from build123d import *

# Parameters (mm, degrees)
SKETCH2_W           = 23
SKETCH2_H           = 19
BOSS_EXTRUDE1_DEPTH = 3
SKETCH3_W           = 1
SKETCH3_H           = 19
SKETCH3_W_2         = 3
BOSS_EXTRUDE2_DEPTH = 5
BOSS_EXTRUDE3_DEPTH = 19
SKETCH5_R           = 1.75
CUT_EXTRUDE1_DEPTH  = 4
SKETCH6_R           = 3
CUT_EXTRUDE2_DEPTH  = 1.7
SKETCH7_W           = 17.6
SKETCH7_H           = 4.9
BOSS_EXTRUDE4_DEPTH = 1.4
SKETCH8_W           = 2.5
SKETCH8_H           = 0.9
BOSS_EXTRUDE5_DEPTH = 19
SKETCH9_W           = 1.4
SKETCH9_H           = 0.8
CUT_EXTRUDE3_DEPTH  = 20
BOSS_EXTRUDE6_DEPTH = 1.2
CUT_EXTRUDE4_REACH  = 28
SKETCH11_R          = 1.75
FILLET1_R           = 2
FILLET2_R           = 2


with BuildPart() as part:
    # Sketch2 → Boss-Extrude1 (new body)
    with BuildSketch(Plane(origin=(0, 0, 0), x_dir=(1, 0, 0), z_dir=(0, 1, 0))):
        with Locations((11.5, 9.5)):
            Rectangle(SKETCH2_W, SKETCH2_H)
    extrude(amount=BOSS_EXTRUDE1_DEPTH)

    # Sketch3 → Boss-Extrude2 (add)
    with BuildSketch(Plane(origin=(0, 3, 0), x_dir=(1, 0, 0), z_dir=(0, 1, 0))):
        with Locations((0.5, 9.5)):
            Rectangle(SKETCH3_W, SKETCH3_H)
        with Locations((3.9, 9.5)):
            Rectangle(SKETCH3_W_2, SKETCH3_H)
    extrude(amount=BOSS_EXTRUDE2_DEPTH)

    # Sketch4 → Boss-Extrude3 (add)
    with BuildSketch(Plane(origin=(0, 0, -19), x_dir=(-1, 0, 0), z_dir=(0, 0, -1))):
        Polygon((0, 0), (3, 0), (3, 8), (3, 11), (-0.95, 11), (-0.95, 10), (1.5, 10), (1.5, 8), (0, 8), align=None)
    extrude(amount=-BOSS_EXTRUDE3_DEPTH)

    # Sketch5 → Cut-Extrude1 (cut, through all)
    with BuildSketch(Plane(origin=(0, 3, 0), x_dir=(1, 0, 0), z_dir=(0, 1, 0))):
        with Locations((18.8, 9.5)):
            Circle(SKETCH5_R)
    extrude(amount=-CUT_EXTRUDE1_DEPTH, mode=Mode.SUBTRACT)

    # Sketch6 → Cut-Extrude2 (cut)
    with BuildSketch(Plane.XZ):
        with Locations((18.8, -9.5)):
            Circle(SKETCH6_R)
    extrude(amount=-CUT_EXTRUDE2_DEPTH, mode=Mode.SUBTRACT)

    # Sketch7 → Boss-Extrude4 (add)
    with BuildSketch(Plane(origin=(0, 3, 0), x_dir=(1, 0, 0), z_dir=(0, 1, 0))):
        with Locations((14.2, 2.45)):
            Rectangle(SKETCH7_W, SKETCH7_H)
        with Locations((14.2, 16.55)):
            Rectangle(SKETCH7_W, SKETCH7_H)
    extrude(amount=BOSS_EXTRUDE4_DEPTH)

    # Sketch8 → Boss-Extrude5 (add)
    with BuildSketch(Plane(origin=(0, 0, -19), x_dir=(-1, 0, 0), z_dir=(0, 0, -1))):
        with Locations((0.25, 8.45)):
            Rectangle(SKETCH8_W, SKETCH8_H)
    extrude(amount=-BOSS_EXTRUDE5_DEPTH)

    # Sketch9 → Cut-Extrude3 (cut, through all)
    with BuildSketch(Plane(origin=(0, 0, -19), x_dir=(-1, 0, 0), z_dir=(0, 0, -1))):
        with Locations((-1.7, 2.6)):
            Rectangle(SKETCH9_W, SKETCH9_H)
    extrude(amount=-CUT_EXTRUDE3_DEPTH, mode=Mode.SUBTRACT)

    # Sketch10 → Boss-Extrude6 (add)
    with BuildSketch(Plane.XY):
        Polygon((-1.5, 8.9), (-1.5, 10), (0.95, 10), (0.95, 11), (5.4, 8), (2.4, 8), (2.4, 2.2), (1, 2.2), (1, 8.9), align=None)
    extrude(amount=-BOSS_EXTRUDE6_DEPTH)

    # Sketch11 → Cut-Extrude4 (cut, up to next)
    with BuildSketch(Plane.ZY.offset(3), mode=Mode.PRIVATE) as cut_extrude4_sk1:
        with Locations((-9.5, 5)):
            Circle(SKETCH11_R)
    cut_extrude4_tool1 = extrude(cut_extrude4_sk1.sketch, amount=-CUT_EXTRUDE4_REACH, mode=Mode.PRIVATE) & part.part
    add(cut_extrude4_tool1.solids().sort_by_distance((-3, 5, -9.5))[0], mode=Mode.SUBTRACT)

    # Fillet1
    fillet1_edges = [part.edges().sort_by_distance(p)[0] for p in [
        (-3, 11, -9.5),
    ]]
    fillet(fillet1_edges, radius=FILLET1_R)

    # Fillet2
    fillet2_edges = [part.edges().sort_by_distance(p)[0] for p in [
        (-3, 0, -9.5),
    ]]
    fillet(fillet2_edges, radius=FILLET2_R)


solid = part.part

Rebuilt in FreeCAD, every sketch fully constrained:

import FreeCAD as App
import Part
import Sketcher


def edges_at(feature, points):
    """Names of the edges that pass closest to the given points."""
    edges = feature.Shape.Edges
    near = lambda p: min(range(len(edges)), key=lambda i: edges[i].distToShape(Part.Vertex(*p))[0])
    return sorted({f"Edge{near(p) + 1}" for p in points})

doc = App.newDocument("Part")
params = doc.addObject("Spreadsheet::Sheet", "Params")
for row, (alias, value) in enumerate([
    ("sketch1_width", "23 mm"),
    ("sketch1_height", "19 mm"),
    ("pad1_length", "3 mm"),
    ("sketch2_width", "1 mm"),
    ("sketch2_width2", "3 mm"),
    ("sketch2_height", "19 mm"),
    ("pad2_length", "5 mm"),
    ("sketch3_width", "3 mm"),
    ("sketch3_height", "11 mm"),
    ("sketch3_height2", "1 mm"),
    ("sketch3_height3", "2 mm"),
    ("sketch3_width2", "1.5 mm"),
    ("pad3_length", "19 mm"),
    ("sketch4_diameter", "3.5 mm"),
    ("sketch5_diameter", "6 mm"),
    ("pocket2_length", "1.7 mm"),
    ("sketch6_width", "17.6 mm"),
    ("sketch6_height", "4.9 mm"),
    ("pad4_length", "1.4 mm"),
    ("sketch7_width", "2.5 mm"),
    ("sketch7_height", "0.9 mm"),
    ("pad5_length", "19 mm"),
    ("sketch8_width", "1.4 mm"),
    ("sketch8_height", "0.8 mm"),
    ("sketch9_width", "3 mm"),
    ("sketch9_height", "1 mm"),
    ("sketch9_width2", "2.5 mm"),
    ("sketch9_width3", "1.4 mm"),
    ("sketch9_height2", "1.1 mm"),
    ("pad6_length", "1.2 mm"),
    ("sketch10_diameter", "3.5 mm"),
    ("fillet_radius", "2 mm"),
    ("fillet2_radius", "2 mm"),
], start=1):
    params.set(f"A{row}", alias)
    params.set(f"B{row}", "=" + value)
    params.setAlias(f"B{row}", alias)

body = doc.addObject("PartDesign::Body", "Body")

# Sketch on XZ plane
sketch1 = body.newObject("Sketcher::SketchObject", "Sketch")
sketch1.AttachmentSupport = (doc.getObject("XZ_Plane"), [""])
sketch1.MapMode = "FlatFace"
sketch1.addGeometry(Part.LineSegment(App.Vector(0, -19, 0), App.Vector(0, 0, 0)), False)
sketch1.addGeometry(Part.LineSegment(App.Vector(0, 0, 0), App.Vector(23, 0, 0)), False)
sketch1.addGeometry(Part.LineSegment(App.Vector(23, 0, 0), App.Vector(23, -19, 0)), False)
sketch1.addGeometry(Part.LineSegment(App.Vector(23, -19, 0), App.Vector(0, -19, 0)), False)
sketch1.addConstraint(Sketcher.Constraint("Coincident", 0, 2, 1, 1))
sketch1.addConstraint(Sketcher.Constraint("Coincident", 1, 2, 2, 1))
sketch1.addConstraint(Sketcher.Constraint("Coincident", 2, 2, 3, 1))
sketch1.addConstraint(Sketcher.Constraint("Coincident", 3, 2, 0, 1))
sketch1.addConstraint(Sketcher.Constraint("Vertical", 0))
sketch1.addConstraint(Sketcher.Constraint("Horizontal", 1))
sketch1.addConstraint(Sketcher.Constraint("Vertical", 2))
sketch1.addConstraint(Sketcher.Constraint("Horizontal", 3))
sketch1.addConstraint(Sketcher.Constraint("Coincident", 0, 2, -1, 1))
sketch1.addConstraint(Sketcher.Constraint("DistanceX", 1, 1, 1, 2, 23.0))
sketch1.addConstraint(Sketcher.Constraint("DistanceY", 0, 1, 0, 2, 19.0))
sketch1.setExpression("Constraints[9]", "Params.sketch1_width")
sketch1.setExpression("Constraints[10]", "Params.sketch1_height")
pad1 = body.newObject("PartDesign::Pad", "Pad")
pad1.Profile = sketch1
pad1.setExpression("Length", "Params.pad1_length")
pad1.Reversed = True

# Sketch on XZ plane
sketch2 = body.newObject("Sketcher::SketchObject", "Sketch001")
sketch2.AttachmentSupport = (doc.getObject("XZ_Plane"), [""])
sketch2.MapMode = "FlatFace"
sketch2.AttachmentOffset = App.Placement(App.Vector(0, 0, -3), App.Rotation())
sketch2.addGeometry(Part.LineSegment(App.Vector(0, -19, 0), App.Vector(0, 0, 0)), False)
sketch2.addGeometry(Part.LineSegment(App.Vector(0, 0, 0), App.Vector(1, 0, 0)), False)
sketch2.addGeometry(Part.LineSegment(App.Vector(1, 0, 0), App.Vector(1, -19, 0)), False)
sketch2.addGeometry(Part.LineSegment(App.Vector(1, -19, 0), App.Vector(0, -19, 0)), False)
sketch2.addGeometry(Part.LineSegment(App.Vector(2.4, -19, 0), App.Vector(2.4, 0, 0)), False)
sketch2.addGeometry(Part.LineSegment(App.Vector(2.4, 0, 0), App.Vector(5.4, 0, 0)), False)
sketch2.addGeometry(Part.LineSegment(App.Vector(5.4, 0, 0), App.Vector(5.4, -19, 0)), False)
sketch2.addGeometry(Part.LineSegment(App.Vector(5.4, -19, 0), App.Vector(2.4, -19, 0)), False)
sketch2.addConstraint(Sketcher.Constraint("Coincident", 0, 2, 1, 1))
sketch2.addConstraint(Sketcher.Constraint("Coincident", 1, 2, 2, 1))
sketch2.addConstraint(Sketcher.Constraint("Coincident", 2, 2, 3, 1))
sketch2.addConstraint(Sketcher.Constraint("Coincident", 3, 2, 0, 1))
sketch2.addConstraint(Sketcher.Constraint("Coincident", 4, 2, 5, 1))
sketch2.addConstraint(Sketcher.Constraint("Coincident", 5, 2, 6, 1))
sketch2.addConstraint(Sketcher.Constraint("Coincident", 6, 2, 7, 1))
sketch2.addConstraint(Sketcher.Constraint("Coincident", 7, 2, 4, 1))
sketch2.addConstraint(Sketcher.Constraint("Vertical", 0))
sketch2.addConstraint(Sketcher.Constraint("Horizontal", 1))
sketch2.addConstraint(Sketcher.Constraint("Vertical", 2))
sketch2.addConstraint(Sketcher.Constraint("Horizontal", 3))
sketch2.addConstraint(Sketcher.Constraint("Vertical", 4))
sketch2.addConstraint(Sketcher.Constraint("Horizontal", 5))
sketch2.addConstraint(Sketcher.Constraint("Vertical", 6))
sketch2.addConstraint(Sketcher.Constraint("Horizontal", 7))
sketch2.addConstraint(Sketcher.Constraint("Coincident", 0, 2, -1, 1))
sketch2.addConstraint(Sketcher.Constraint("PointOnObject", 4, 2, -1))
sketch2.addConstraint(Sketcher.Constraint("Horizontal", 3, 2, 6, 2))
sketch2.addConstraint(Sketcher.Constraint("DistanceX", 1, 1, 1, 2, 1.0))
sketch2.addConstraint(Sketcher.Constraint("DistanceX", 5, 1, 5, 2, 3.0))
sketch2.addConstraint(Sketcher.Constraint("DistanceY", 0, 1, 0, 2, 19.0))
sketch2.addConstraint(Sketcher.Constraint("DistanceX", -1, 1, 4, 2, 2.4))
sketch2.setExpression("Constraints[19]", "Params.sketch2_width")
sketch2.setExpression("Constraints[20]", "Params.sketch2_width2")
sketch2.setExpression("Constraints[21]", "Params.sketch2_height")
pad2 = body.newObject("PartDesign::Pad", "Pad001")
pad2.Profile = sketch2
pad2.setExpression("Length", "Params.pad2_length")
pad2.Reversed = True

# Sketch on XY plane
sketch3 = body.newObject("Sketcher::SketchObject", "Sketch002")
sketch3.AttachmentSupport = (doc.getObject("XY_Plane"), [""])
sketch3.MapMode = "FlatFace"
sketch3.AttachmentOffset = App.Placement(App.Vector(0, 0, -19), App.Rotation())
sketch3.addGeometry(Part.LineSegment(App.Vector(0, 0, 0), App.Vector(-3, 0, 0)), False)
sketch3.addGeometry(Part.LineSegment(App.Vector(-3, 0, 0), App.Vector(-3, 11, 0)), False)
sketch3.addGeometry(Part.LineSegment(App.Vector(-3, 11, 0), App.Vector(0.95, 11, 0)), False)
sketch3.addGeometry(Part.LineSegment(App.Vector(0.95, 11, 0), App.Vector(0.95, 10, 0)), False)
sketch3.addGeometry(Part.LineSegment(App.Vector(0.95, 10, 0), App.Vector(-1.5, 10, 0)), False)
sketch3.addGeometry(Part.LineSegment(App.Vector(-1.5, 10, 0), App.Vector(-1.5, 8, 0)), False)
sketch3.addGeometry(Part.LineSegment(App.Vector(-1.5, 8, 0), App.Vector(0, 8, 0)), False)
sketch3.addGeometry(Part.LineSegment(App.Vector(0, 8, 0), App.Vector(0, 0, 0)), False)
sketch3.addConstraint(Sketcher.Constraint("Coincident", 0, 2, 1, 1))
sketch3.addConstraint(Sketcher.Constraint("Coincident", 1, 2, 2, 1))
sketch3.addConstraint(Sketcher.Constraint("Coincident", 2, 2, 3, 1))
sketch3.addConstraint(Sketcher.Constraint("Coincident", 3, 2, 4, 1))
sketch3.addConstraint(Sketcher.Constraint("Coincident", 4, 2, 5, 1))
sketch3.addConstraint(Sketcher.Constraint("Coincident", 5, 2, 6, 1))
sketch3.addConstraint(Sketcher.Constraint("Coincident", 6, 2, 7, 1))
sketch3.addConstraint(Sketcher.Constraint("Coincident", 7, 2, 0, 1))
sketch3.addConstraint(Sketcher.Constraint("Horizontal", 0))
sketch3.addConstraint(Sketcher.Constraint("Vertical", 1))
sketch3.addConstraint(Sketcher.Constraint("Horizontal", 2))
sketch3.addConstraint(Sketcher.Constraint("Vertical", 3))
sketch3.addConstraint(Sketcher.Constraint("Horizontal", 4))
sketch3.addConstraint(Sketcher.Constraint("Vertical", 5))
sketch3.addConstraint(Sketcher.Constraint("Horizontal", 6))
sketch3.addConstraint(Sketcher.Constraint("Vertical", 7))
sketch3.addConstraint(Sketcher.Constraint("Coincident", 7, 2, -1, 1))
sketch3.addConstraint(Sketcher.Constraint("DistanceX", 0, 2, 0, 1, 3.0))
sketch3.addConstraint(Sketcher.Constraint("DistanceY", 1, 1, 1, 2, 11.0))
sketch3.addConstraint(Sketcher.Constraint("DistanceY", 3, 2, 3, 1, 1.0))
sketch3.addConstraint(Sketcher.Constraint("DistanceY", 5, 2, 5, 1, 2.0))
sketch3.addConstraint(Sketcher.Constraint("DistanceX", 6, 1, 6, 2, 1.5))
sketch3.addConstraint(Sketcher.Constraint("DistanceX", 2, 1, 2, 2, 3.95))
sketch3.setExpression("Constraints[17]", "Params.sketch3_width")
sketch3.setExpression("Constraints[18]", "Params.sketch3_height")
sketch3.setExpression("Constraints[19]", "Params.sketch3_height2")
sketch3.setExpression("Constraints[20]", "Params.sketch3_height3")
sketch3.setExpression("Constraints[21]", "Params.sketch3_width2")
pad3 = body.newObject("PartDesign::Pad", "Pad002")
pad3.Profile = sketch3
pad3.setExpression("Length", "Params.pad3_length")

# Sketch on XZ plane
sketch4 = body.newObject("Sketcher::SketchObject", "Sketch003")
sketch4.AttachmentSupport = (doc.getObject("XZ_Plane"), [""])
sketch4.MapMode = "FlatFace"
sketch4.AttachmentOffset = App.Placement(App.Vector(0, 0, -3), App.Rotation())
sketch4.addGeometry(Part.Circle(App.Vector(18.8, -9.5, 0), App.Vector(0, 0, 1), 1.75), False)
sketch4.addConstraint(Sketcher.Constraint("Diameter", 0, 3.5))
sketch4.addConstraint(Sketcher.Constraint("DistanceX", -1, 1, 0, 3, 18.8))
sketch4.addConstraint(Sketcher.Constraint("DistanceY", 0, 3, -1, 1, 9.5))
sketch4.setExpression("Constraints[0]", "Params.sketch4_diameter")
pocket1 = body.newObject("PartDesign::Pocket", "Pocket")
pocket1.Profile = sketch4
pocket1.Type = "ThroughAll"
pocket1.Reversed = True

# Sketch on XZ plane
sketch5 = body.newObject("Sketcher::SketchObject", "Sketch004")
sketch5.AttachmentSupport = (doc.getObject("XZ_Plane"), [""])
sketch5.MapMode = "FlatFace"
sketch5.addGeometry(Part.Circle(App.Vector(18.8, -9.5, 0), App.Vector(0, 0, 1), 3), False)
sketch5.addConstraint(Sketcher.Constraint("Diameter", 0, 6.0))
sketch5.addConstraint(Sketcher.Constraint("DistanceX", -1, 1, 0, 3, 18.8))
sketch5.addConstraint(Sketcher.Constraint("DistanceY", 0, 3, -1, 1, 9.5))
sketch5.setExpression("Constraints[0]", "Params.sketch5_diameter")
pocket2 = body.newObject("PartDesign::Pocket", "Pocket001")
pocket2.Profile = sketch5
pocket2.setExpression("Length", "Params.pocket2_length")

# Sketch on XZ plane
sketch6 = body.newObject("Sketcher::SketchObject", "Sketch005")
sketch6.AttachmentSupport = (doc.getObject("XZ_Plane"), [""])
sketch6.MapMode = "FlatFace"
sketch6.AttachmentOffset = App.Placement(App.Vector(0, 0, -3), App.Rotation())
sketch6.addGeometry(Part.LineSegment(App.Vector(5.4, -4.9, 0), App.Vector(5.4, 0, 0)), False)
sketch6.addGeometry(Part.LineSegment(App.Vector(5.4, 0, 0), App.Vector(23, 0, 0)), False)
sketch6.addGeometry(Part.LineSegment(App.Vector(23, 0, 0), App.Vector(23, -4.9, 0)), False)
sketch6.addGeometry(Part.LineSegment(App.Vector(23, -4.9, 0), App.Vector(5.4, -4.9, 0)), False)
sketch6.addGeometry(Part.LineSegment(App.Vector(5.4, -19, 0), App.Vector(5.4, -14.1, 0)), False)
sketch6.addGeometry(Part.LineSegment(App.Vector(5.4, -14.1, 0), App.Vector(23, -14.1, 0)), False)
sketch6.addGeometry(Part.LineSegment(App.Vector(23, -14.1, 0), App.Vector(23, -19, 0)), False)
sketch6.addGeometry(Part.LineSegment(App.Vector(23, -19, 0), App.Vector(5.4, -19, 0)), False)
sketch6.addConstraint(Sketcher.Constraint("Coincident", 0, 2, 1, 1))
sketch6.addConstraint(Sketcher.Constraint("Coincident", 1, 2, 2, 1))
sketch6.addConstraint(Sketcher.Constraint("Coincident", 2, 2, 3, 1))
sketch6.addConstraint(Sketcher.Constraint("Coincident", 3, 2, 0, 1))
sketch6.addConstraint(Sketcher.Constraint("Coincident", 4, 2, 5, 1))
sketch6.addConstraint(Sketcher.Constraint("Coincident", 5, 2, 6, 1))
sketch6.addConstraint(Sketcher.Constraint("Coincident", 6, 2, 7, 1))
sketch6.addConstraint(Sketcher.Constraint("Coincident", 7, 2, 4, 1))
sketch6.addConstraint(Sketcher.Constraint("Vertical", 0))
sketch6.addConstraint(Sketcher.Constraint("Horizontal", 1))
sketch6.addConstraint(Sketcher.Constraint("Vertical", 2))
sketch6.addConstraint(Sketcher.Constraint("Horizontal", 3))
sketch6.addConstraint(Sketcher.Constraint("Vertical", 4))
sketch6.addConstraint(Sketcher.Constraint("Horizontal", 5))
sketch6.addConstraint(Sketcher.Constraint("Vertical", 6))
sketch6.addConstraint(Sketcher.Constraint("Horizontal", 7))
sketch6.addConstraint(Sketcher.Constraint("PointOnObject", 0, 2, -1))
sketch6.addConstraint(Sketcher.Constraint("Vertical", 3, 2, 4, 2))
sketch6.addConstraint(Sketcher.Constraint("Vertical", 2, 2, 5, 2))
sketch6.addConstraint(Sketcher.Constraint("Equal", 2, 4))
sketch6.addConstraint(Sketcher.Constraint("DistanceX", 1, 1, 1, 2, 17.6))
sketch6.addConstraint(Sketcher.Constraint("DistanceY", 0, 1, 0, 2, 4.9))
sketch6.addConstraint(Sketcher.Constraint("DistanceX", -1, 1, 1, 2, 23.0))
sketch6.addConstraint(Sketcher.Constraint("DistanceY", 6, 2, -1, 1, 19.0))
sketch6.setExpression("Constraints[20]", "Params.sketch6_width")
sketch6.setExpression("Constraints[21]", "Params.sketch6_height")
pad4 = body.newObject("PartDesign::Pad", "Pad003")
pad4.Profile = sketch6
pad4.setExpression("Length", "Params.pad4_length")
pad4.Reversed = True

# Sketch on XY plane
sketch7 = body.newObject("Sketcher::SketchObject", "Sketch006")
sketch7.AttachmentSupport = (doc.getObject("XY_Plane"), [""])
sketch7.MapMode = "FlatFace"
sketch7.AttachmentOffset = App.Placement(App.Vector(0, 0, -19), App.Rotation())
sketch7.addGeometry(Part.LineSegment(App.Vector(1, 8.9, 0), App.Vector(1, 8, 0)), False)
sketch7.addGeometry(Part.LineSegment(App.Vector(1, 8, 0), App.Vector(-1.5, 8, 0)), False)
sketch7.addGeometry(Part.LineSegment(App.Vector(-1.5, 8, 0), App.Vector(-1.5, 8.9, 0)), False)
sketch7.addGeometry(Part.LineSegment(App.Vector(-1.5, 8.9, 0), App.Vector(1, 8.9, 0)), False)
sketch7.addConstraint(Sketcher.Constraint("Coincident", 0, 2, 1, 1))
sketch7.addConstraint(Sketcher.Constraint("Coincident", 1, 2, 2, 1))
sketch7.addConstraint(Sketcher.Constraint("Coincident", 2, 2, 3, 1))
sketch7.addConstraint(Sketcher.Constraint("Coincident", 3, 2, 0, 1))
sketch7.addConstraint(Sketcher.Constraint("Vertical", 0))
sketch7.addConstraint(Sketcher.Constraint("Horizontal", 1))
sketch7.addConstraint(Sketcher.Constraint("Vertical", 2))
sketch7.addConstraint(Sketcher.Constraint("Horizontal", 3))
sketch7.addConstraint(Sketcher.Constraint("DistanceX", 1, 2, 1, 1, 2.5))
sketch7.addConstraint(Sketcher.Constraint("DistanceY", 0, 2, 0, 1, 0.9))
sketch7.addConstraint(Sketcher.Constraint("DistanceX", -1, 1, 0, 2, 1.0))
sketch7.addConstraint(Sketcher.Constraint("DistanceY", -1, 1, 0, 2, 8.0))
sketch7.setExpression("Constraints[8]", "Params.sketch7_width")
sketch7.setExpression("Constraints[9]", "Params.sketch7_height")
pad5 = body.newObject("PartDesign::Pad", "Pad004")
pad5.Profile = sketch7
pad5.setExpression("Length", "Params.pad5_length")

# Sketch on XY plane
sketch8 = body.newObject("Sketcher::SketchObject", "Sketch007")
sketch8.AttachmentSupport = (doc.getObject("XY_Plane"), [""])
sketch8.MapMode = "FlatFace"
sketch8.AttachmentOffset = App.Placement(App.Vector(0, 0, -19), App.Rotation())
sketch8.addGeometry(Part.LineSegment(App.Vector(2.4, 3, 0), App.Vector(2.4, 2.2, 0)), False)
sketch8.addGeometry(Part.LineSegment(App.Vector(2.4, 2.2, 0), App.Vector(1, 2.2, 0)), False)
sketch8.addGeometry(Part.LineSegment(App.Vector(1, 2.2, 0), App.Vector(1, 3, 0)), False)
sketch8.addGeometry(Part.LineSegment(App.Vector(1, 3, 0), App.Vector(2.4, 3, 0)), False)
sketch8.addConstraint(Sketcher.Constraint("Coincident", 0, 2, 1, 1))
sketch8.addConstraint(Sketcher.Constraint("Coincident", 1, 2, 2, 1))
sketch8.addConstraint(Sketcher.Constraint("Coincident", 2, 2, 3, 1))
sketch8.addConstraint(Sketcher.Constraint("Coincident", 3, 2, 0, 1))
sketch8.addConstraint(Sketcher.Constraint("Vertical", 0))
sketch8.addConstraint(Sketcher.Constraint("Horizontal", 1))
sketch8.addConstraint(Sketcher.Constraint("Vertical", 2))
sketch8.addConstraint(Sketcher.Constraint("Horizontal", 3))
sketch8.addConstraint(Sketcher.Constraint("DistanceX", 1, 2, 1, 1, 1.4))
sketch8.addConstraint(Sketcher.Constraint("DistanceY", 0, 2, 0, 1, 0.8))
sketch8.addConstraint(Sketcher.Constraint("DistanceX", -1, 1, 1, 2, 1.0))
sketch8.addConstraint(Sketcher.Constraint("DistanceY", -1, 1, 2, 2, 3.0))
sketch8.setExpression("Constraints[8]", "Params.sketch8_width")
sketch8.setExpression("Constraints[9]", "Params.sketch8_height")
pocket3 = body.newObject("PartDesign::Pocket", "Pocket002")
pocket3.Profile = sketch8
pocket3.Type = "ThroughAll"
pocket3.Reversed = True

# Sketch on XY plane
sketch9 = body.newObject("Sketcher::SketchObject", "Sketch008")
sketch9.AttachmentSupport = (doc.getObject("XY_Plane"), [""])
sketch9.MapMode = "FlatFace"
sketch9.addGeometry(Part.LineSegment(App.Vector(-1.5, 10, 0), App.Vector(-1.5, 8.9, 0)), False)
sketch9.addGeometry(Part.LineSegment(App.Vector(-1.5, 8.9, 0), App.Vector(1, 8.9, 0)), False)
sketch9.addGeometry(Part.LineSegment(App.Vector(1, 8.9, 0), App.Vector(1, 2.2, 0)), False)
sketch9.addGeometry(Part.LineSegment(App.Vector(1, 2.2, 0), App.Vector(2.4, 2.2, 0)), False)
sketch9.addGeometry(Part.LineSegment(App.Vector(2.4, 2.2, 0), App.Vector(2.4, 8, 0)), False)
sketch9.addGeometry(Part.LineSegment(App.Vector(2.4, 8, 0), App.Vector(5.4, 8, 0)), False)
sketch9.addGeometry(Part.LineSegment(App.Vector(5.4, 8, 0), App.Vector(0.95, 11, 0)), False)
sketch9.addGeometry(Part.LineSegment(App.Vector(0.95, 11, 0), App.Vector(0.95, 10, 0)), False)
sketch9.addGeometry(Part.LineSegment(App.Vector(0.95, 10, 0), App.Vector(-1.5, 10, 0)), False)
sketch9.addConstraint(Sketcher.Constraint("Coincident", 0, 2, 1, 1))
sketch9.addConstraint(Sketcher.Constraint("Coincident", 1, 2, 2, 1))
sketch9.addConstraint(Sketcher.Constraint("Coincident", 2, 2, 3, 1))
sketch9.addConstraint(Sketcher.Constraint("Coincident", 3, 2, 4, 1))
sketch9.addConstraint(Sketcher.Constraint("Coincident", 4, 2, 5, 1))
sketch9.addConstraint(Sketcher.Constraint("Coincident", 5, 2, 6, 1))
sketch9.addConstraint(Sketcher.Constraint("Coincident", 6, 2, 7, 1))
sketch9.addConstraint(Sketcher.Constraint("Coincident", 7, 2, 8, 1))
sketch9.addConstraint(Sketcher.Constraint("Coincident", 8, 2, 0, 1))
sketch9.addConstraint(Sketcher.Constraint("Vertical", 0))
sketch9.addConstraint(Sketcher.Constraint("Horizontal", 1))
sketch9.addConstraint(Sketcher.Constraint("Vertical", 2))
sketch9.addConstraint(Sketcher.Constraint("Horizontal", 3))
sketch9.addConstraint(Sketcher.Constraint("Vertical", 4))
sketch9.addConstraint(Sketcher.Constraint("Horizontal", 5))
sketch9.addConstraint(Sketcher.Constraint("Vertical", 7))
sketch9.addConstraint(Sketcher.Constraint("Horizontal", 8))
sketch9.addConstraint(Sketcher.Constraint("DistanceX", 5, 1, 5, 2, 3.0))
sketch9.addConstraint(Sketcher.Constraint("DistanceY", 7, 2, 7, 1, 1.0))
sketch9.addConstraint(Sketcher.Constraint("DistanceX", 1, 1, 1, 2, 2.5))
sketch9.addConstraint(Sketcher.Constraint("DistanceX", 3, 1, 3, 2, 1.4))
sketch9.addConstraint(Sketcher.Constraint("DistanceY", 0, 2, 0, 1, 1.1))
sketch9.addConstraint(Sketcher.Constraint("DistanceY", 2, 2, 2, 1, 6.7))
sketch9.addConstraint(Sketcher.Constraint("DistanceY", 4, 1, 4, 2, 5.8))
sketch9.addConstraint(Sketcher.Constraint("DistanceX", -1, 1, 1, 2, 1.0))
sketch9.addConstraint(Sketcher.Constraint("DistanceY", -1, 1, 4, 2, 8.0))
sketch9.addConstraint(Sketcher.Constraint("DistanceX", 8, 2, 8, 1, 2.45))
sketch9.setExpression("Constraints[17]", "Params.sketch9_width")
sketch9.setExpression("Constraints[18]", "Params.sketch9_height")
sketch9.setExpression("Constraints[19]", "Params.sketch9_width2")
sketch9.setExpression("Constraints[20]", "Params.sketch9_width3")
sketch9.setExpression("Constraints[21]", "Params.sketch9_height2")
pad6 = body.newObject("PartDesign::Pad", "Pad005")
pad6.Profile = sketch9
pad6.setExpression("Length", "Params.pad6_length")
pad6.Reversed = True

# Sketch on YZ plane
sketch10 = body.newObject("Sketcher::SketchObject", "Sketch009")
sketch10.AttachmentSupport = (doc.getObject("YZ_Plane"), [""])
sketch10.MapMode = "FlatFace"
sketch10.AttachmentOffset = App.Placement(App.Vector(0, 0, -3), App.Rotation())
sketch10.addGeometry(Part.Circle(App.Vector(5, -9.5, 0), App.Vector(0, 0, 1), 1.75), False)
sketch10.addConstraint(Sketcher.Constraint("Diameter", 0, 3.5))
sketch10.addConstraint(Sketcher.Constraint("DistanceX", -1, 1, 0, 3, 5.0))
sketch10.addConstraint(Sketcher.Constraint("DistanceY", 0, 3, -1, 1, 9.5))
sketch10.setExpression("Constraints[0]", "Params.sketch10_diameter")
pocket4 = body.newObject("PartDesign::Pocket", "Pocket003")
pocket4.Profile = sketch10
pocket4.Type = "UpToFirst"
pocket4.Reversed = True
doc.recompute()

fillet = body.newObject("PartDesign::Fillet", "Fillet")
fillet.Base = (pocket4, edges_at(pocket4, [(-3, 11, -9.5)]))
fillet.setExpression("Radius", "Params.fillet_radius")
doc.recompute()

fillet2 = body.newObject("PartDesign::Fillet", "Fillet001")
fillet2.Base = (fillet, edges_at(fillet, [(-3, 0, -9.5)]))
fillet2.setExpression("Radius", "Params.fillet2_radius")

doc.recompute()
